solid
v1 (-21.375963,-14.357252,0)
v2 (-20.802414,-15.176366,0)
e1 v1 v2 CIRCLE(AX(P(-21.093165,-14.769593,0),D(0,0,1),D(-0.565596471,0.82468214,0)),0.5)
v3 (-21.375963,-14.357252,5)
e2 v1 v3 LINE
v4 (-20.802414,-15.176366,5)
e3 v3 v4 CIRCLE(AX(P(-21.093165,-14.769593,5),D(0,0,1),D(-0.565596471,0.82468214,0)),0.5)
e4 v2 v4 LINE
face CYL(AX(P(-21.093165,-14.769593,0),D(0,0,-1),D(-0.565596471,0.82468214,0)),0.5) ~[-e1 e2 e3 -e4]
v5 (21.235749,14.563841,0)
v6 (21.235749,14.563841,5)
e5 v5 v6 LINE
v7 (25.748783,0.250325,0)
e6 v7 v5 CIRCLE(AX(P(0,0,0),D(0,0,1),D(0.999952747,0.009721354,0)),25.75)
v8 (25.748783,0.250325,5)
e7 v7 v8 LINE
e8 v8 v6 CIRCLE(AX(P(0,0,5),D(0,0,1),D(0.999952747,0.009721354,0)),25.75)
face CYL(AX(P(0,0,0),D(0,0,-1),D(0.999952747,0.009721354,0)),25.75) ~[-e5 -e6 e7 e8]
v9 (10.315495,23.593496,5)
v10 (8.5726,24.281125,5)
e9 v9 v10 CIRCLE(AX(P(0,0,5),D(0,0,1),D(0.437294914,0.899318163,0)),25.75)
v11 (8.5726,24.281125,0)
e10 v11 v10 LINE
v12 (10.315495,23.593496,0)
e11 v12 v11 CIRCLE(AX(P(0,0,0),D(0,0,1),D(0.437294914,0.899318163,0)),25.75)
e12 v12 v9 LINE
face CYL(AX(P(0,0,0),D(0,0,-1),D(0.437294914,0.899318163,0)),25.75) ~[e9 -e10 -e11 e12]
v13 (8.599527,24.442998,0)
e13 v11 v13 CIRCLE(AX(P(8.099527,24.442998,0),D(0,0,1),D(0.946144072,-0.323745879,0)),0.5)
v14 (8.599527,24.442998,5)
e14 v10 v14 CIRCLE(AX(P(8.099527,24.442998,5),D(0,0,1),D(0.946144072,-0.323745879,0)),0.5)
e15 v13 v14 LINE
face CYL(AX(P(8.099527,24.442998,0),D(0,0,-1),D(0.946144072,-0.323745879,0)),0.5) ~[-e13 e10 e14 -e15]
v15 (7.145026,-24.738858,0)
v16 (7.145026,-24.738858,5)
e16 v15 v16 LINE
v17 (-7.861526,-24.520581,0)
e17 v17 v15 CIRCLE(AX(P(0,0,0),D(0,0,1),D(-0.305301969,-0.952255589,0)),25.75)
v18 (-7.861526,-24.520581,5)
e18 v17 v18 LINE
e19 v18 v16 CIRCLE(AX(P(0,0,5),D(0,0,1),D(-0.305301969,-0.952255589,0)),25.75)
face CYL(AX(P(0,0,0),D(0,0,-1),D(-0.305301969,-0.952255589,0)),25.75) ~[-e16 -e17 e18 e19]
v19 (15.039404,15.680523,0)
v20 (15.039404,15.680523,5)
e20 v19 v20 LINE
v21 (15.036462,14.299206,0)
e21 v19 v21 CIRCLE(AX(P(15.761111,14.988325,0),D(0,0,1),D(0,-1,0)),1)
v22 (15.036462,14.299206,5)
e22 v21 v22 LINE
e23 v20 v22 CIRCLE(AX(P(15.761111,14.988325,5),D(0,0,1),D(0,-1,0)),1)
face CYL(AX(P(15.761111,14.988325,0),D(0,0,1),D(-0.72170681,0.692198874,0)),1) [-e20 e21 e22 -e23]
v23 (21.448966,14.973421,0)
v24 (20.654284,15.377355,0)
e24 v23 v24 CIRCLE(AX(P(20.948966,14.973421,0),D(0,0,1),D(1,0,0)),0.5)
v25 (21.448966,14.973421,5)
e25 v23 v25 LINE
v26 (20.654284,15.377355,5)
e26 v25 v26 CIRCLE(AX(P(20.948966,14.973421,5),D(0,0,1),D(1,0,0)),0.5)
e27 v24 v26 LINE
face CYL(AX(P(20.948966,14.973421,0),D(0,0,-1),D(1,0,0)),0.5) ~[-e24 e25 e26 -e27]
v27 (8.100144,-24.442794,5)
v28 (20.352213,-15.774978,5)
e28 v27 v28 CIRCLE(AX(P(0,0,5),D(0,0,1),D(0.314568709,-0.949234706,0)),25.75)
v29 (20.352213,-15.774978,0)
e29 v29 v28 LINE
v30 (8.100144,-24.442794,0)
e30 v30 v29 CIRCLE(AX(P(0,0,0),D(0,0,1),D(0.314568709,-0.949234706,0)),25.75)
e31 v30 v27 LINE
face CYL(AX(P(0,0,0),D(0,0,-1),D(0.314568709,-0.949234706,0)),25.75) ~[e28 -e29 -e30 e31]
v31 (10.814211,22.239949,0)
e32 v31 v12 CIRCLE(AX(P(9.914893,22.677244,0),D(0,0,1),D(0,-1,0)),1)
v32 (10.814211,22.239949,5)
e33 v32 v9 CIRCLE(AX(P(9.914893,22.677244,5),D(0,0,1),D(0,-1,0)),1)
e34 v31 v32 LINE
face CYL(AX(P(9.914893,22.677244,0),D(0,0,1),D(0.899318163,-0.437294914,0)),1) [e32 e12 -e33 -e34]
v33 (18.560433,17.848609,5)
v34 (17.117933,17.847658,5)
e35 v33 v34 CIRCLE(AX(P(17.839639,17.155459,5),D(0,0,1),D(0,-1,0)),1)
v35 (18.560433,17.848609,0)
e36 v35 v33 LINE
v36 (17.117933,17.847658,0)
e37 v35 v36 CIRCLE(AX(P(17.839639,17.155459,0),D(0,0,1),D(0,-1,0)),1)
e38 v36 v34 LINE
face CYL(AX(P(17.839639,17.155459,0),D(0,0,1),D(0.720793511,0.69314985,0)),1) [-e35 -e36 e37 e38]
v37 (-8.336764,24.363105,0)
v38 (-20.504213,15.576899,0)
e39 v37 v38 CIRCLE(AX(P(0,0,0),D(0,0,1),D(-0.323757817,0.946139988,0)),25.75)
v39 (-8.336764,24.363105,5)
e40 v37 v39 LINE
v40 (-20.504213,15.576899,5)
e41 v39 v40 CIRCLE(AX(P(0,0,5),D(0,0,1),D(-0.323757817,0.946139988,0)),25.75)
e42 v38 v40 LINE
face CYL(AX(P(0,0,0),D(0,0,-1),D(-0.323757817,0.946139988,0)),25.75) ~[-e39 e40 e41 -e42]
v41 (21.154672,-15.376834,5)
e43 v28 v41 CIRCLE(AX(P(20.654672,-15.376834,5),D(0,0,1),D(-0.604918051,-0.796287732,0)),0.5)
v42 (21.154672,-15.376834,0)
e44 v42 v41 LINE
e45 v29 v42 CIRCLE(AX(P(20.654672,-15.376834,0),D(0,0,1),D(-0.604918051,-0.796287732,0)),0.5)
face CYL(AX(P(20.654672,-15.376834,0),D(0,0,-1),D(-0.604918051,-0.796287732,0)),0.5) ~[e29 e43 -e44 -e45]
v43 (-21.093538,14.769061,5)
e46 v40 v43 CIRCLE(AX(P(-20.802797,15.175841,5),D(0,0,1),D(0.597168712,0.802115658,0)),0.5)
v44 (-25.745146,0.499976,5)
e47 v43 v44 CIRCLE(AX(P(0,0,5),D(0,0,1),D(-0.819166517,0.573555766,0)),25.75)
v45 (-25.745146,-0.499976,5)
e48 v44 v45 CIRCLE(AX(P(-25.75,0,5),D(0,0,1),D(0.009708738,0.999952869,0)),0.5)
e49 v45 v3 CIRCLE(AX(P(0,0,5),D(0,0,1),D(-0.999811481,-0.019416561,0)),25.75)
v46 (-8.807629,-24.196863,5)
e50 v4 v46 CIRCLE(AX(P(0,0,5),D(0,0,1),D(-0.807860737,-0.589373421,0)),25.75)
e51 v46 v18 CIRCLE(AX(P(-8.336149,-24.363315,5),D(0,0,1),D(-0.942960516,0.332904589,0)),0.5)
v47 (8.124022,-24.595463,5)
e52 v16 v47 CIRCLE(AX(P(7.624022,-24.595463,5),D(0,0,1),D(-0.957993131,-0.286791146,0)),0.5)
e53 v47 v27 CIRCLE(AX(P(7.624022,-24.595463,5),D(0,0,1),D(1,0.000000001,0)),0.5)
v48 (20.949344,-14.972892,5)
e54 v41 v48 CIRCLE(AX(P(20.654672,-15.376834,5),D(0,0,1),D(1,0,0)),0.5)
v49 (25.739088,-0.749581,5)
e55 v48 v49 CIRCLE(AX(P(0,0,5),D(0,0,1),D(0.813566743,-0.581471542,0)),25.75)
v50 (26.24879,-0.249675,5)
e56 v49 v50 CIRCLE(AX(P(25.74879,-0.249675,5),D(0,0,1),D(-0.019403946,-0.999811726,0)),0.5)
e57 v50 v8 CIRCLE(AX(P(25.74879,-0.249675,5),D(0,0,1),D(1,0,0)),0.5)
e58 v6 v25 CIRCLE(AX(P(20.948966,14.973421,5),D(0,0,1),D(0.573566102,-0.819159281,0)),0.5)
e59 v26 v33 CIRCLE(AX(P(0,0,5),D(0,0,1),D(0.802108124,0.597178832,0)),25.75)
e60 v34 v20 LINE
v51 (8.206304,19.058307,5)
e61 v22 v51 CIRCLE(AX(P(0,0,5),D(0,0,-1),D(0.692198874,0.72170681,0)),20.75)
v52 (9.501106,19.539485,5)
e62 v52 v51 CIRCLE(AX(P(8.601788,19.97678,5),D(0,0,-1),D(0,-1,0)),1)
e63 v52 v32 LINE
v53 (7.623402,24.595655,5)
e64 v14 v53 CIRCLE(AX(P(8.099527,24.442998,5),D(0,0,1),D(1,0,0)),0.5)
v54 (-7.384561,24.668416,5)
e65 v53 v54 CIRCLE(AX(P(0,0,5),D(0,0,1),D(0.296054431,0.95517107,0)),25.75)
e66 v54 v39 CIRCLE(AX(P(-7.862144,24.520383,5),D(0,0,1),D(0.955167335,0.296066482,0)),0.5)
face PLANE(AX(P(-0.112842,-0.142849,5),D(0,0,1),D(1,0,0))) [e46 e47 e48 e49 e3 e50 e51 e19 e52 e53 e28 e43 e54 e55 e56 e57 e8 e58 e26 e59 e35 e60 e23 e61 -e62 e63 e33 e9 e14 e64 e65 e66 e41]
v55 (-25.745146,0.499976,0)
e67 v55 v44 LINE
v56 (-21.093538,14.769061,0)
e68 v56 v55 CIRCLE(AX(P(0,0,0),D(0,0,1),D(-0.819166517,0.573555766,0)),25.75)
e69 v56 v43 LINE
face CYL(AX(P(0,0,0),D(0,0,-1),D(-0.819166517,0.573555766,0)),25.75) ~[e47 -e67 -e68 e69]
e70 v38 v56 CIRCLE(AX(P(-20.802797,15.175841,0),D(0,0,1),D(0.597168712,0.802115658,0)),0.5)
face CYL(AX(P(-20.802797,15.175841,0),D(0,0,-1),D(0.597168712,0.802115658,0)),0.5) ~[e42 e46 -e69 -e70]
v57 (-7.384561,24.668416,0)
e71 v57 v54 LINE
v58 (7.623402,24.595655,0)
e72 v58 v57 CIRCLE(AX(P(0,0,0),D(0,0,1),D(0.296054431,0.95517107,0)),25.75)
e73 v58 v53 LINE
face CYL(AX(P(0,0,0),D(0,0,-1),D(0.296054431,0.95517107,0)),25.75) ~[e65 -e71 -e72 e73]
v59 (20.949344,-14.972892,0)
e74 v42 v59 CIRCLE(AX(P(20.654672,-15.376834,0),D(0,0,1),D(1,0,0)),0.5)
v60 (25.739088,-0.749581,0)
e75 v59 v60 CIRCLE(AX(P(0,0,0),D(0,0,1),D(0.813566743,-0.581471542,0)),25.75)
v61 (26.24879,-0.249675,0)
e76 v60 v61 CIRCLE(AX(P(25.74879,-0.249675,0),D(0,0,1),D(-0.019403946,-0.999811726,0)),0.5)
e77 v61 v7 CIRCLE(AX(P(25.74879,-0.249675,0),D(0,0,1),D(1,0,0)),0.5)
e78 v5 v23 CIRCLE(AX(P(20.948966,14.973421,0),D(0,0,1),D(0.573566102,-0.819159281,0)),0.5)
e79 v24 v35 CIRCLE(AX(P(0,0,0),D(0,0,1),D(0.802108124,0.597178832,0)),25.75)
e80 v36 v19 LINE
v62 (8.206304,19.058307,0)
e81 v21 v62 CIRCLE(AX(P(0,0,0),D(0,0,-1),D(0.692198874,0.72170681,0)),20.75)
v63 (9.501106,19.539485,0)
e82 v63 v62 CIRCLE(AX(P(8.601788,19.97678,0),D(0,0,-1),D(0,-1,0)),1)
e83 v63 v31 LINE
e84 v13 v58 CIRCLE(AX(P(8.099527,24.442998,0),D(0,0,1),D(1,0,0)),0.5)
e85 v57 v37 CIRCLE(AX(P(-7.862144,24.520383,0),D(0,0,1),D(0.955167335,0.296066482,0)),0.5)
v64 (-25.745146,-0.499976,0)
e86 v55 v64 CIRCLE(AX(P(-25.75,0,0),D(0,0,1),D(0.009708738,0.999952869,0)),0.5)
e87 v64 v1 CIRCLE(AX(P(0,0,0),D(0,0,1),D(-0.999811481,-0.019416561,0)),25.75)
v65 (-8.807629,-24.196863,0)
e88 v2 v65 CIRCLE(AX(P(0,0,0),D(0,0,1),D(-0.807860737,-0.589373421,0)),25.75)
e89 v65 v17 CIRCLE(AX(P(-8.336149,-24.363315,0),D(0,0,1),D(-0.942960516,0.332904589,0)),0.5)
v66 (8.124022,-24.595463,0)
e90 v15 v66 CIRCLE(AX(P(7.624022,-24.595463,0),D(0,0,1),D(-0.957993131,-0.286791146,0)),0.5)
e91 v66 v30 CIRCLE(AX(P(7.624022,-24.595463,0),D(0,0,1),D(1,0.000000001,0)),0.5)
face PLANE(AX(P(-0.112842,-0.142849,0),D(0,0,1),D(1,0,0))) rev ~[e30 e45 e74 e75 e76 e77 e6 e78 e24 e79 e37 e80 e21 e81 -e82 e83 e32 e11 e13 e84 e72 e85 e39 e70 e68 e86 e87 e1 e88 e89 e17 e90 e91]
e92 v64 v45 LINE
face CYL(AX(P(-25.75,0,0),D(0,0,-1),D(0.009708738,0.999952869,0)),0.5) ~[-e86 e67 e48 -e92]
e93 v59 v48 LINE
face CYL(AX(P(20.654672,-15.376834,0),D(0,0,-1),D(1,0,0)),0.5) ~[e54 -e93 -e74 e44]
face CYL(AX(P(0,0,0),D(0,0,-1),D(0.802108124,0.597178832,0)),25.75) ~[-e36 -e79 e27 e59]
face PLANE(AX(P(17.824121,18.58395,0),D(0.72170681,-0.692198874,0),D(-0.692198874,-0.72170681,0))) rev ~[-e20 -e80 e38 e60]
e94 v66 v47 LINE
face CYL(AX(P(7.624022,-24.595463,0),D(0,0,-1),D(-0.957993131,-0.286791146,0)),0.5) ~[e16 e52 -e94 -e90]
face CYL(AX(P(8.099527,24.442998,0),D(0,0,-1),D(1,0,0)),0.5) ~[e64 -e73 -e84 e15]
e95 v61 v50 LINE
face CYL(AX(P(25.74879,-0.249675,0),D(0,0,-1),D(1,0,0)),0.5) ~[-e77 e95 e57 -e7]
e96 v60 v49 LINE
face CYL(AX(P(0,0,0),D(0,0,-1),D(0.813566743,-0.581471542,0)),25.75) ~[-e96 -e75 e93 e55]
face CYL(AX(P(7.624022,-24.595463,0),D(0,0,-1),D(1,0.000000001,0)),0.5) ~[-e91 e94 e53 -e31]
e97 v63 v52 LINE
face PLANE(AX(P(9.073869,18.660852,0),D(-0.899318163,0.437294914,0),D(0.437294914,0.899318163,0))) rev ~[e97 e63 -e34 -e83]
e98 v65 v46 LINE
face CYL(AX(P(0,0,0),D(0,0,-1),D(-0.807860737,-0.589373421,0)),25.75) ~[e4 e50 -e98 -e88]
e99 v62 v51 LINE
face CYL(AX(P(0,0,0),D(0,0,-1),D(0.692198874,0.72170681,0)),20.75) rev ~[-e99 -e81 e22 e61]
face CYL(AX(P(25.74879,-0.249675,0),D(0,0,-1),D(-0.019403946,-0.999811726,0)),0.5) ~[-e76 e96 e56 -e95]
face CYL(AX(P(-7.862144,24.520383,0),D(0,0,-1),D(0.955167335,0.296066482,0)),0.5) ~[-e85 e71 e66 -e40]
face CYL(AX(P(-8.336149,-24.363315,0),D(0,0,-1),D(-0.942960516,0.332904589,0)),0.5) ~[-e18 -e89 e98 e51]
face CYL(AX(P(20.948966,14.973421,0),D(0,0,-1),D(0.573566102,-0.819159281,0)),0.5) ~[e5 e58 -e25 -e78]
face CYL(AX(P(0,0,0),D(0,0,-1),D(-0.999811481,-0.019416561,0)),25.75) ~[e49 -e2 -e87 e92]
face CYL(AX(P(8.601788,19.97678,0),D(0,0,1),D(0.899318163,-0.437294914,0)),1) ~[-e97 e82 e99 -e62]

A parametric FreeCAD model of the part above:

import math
import FreeCAD as App
import Part
import Sketcher
from FreeCAD import Vector
Q = App.Units.Quantity


def edges_at(feature, points):
    """Names of the edges that pass closest to the given points."""
    edges = feature.Shape.Edges
    near = lambda p: min(range(len(edges)), key=lambda i: edges[i].distToShape(Part.Vertex(*p))[0])
    return sorted({f"Edge{near(p) + 1}" for p in points})

doc = App.newDocument("Part")
body = doc.addObject("PartDesign::Body", "Body")

# Sketch on XY plane
sketch1 = body.newObject("Sketcher::SketchObject", "Sketch")
sketch1.AttachmentSupport = (doc.getObject("XY_Plane"), [""])
sketch1.MapMode = "FlatFace"
sketch1.addGeometry(Part.LineSegment(Vector(9.07, 18.66, 0), Vector(11.26, 23.16, 0)), False)
sketch1.addGeometry(Part.ArcOfCircle(Part.Circle(Vector(0, 0, 0), Vector(0, 0, 1), 25.75), math.radians(64.07), math.radians(70.55)), False)
sketch1.addGeometry(Part.ArcOfCircle(Part.Circle(Vector(8.1, 24.44, 0), Vector(0, 0, 1), 0.5), math.radians(-18.89), math.radians(0)), False)
sketch1.addGeometry(Part.ArcOfCircle(Part.Circle(Vector(8.1, 24.44, 0), Vector(0, 0, 1), 0.5), math.radians(0), math.radians(162)), False)
sketch1.addGeometry(Part.ArcOfCircle(Part.Circle(Vector(0, 0, 0), Vector(0, 0, 1), 25.75), math.radians(73), math.radians(107)), False)
sketch1.addGeometry(Part.ArcOfCircle(Part.Circle(Vector(-7.86, 24.52, 0), Vector(0, 0, 1), 0.5), math.radians(17), math.radians(198)), False)
sketch1.addGeometry(Part.ArcOfCircle(Part.Circle(Vector(0, 0, 0), Vector(0, 0, 1), 25.75), math.radians(109), math.radians(143)), False)
sketch1.addGeometry(Part.ArcOfCircle(Part.Circle(Vector(-20.8, 15.18, 0), Vector(0, 0, 1), 0.5), math.radians(53), math.radians(234)), False)
sketch1.addGeometry(Part.ArcOfCircle(Part.Circle(Vector(0, 0, 0), Vector(0, 0, 1), 25.75), math.radians(145), math.radians(179)), False)
sketch1.addGeometry(Part.ArcOfCircle(Part.Circle(Vector(-25.75, 0, 0), Vector(0, 0, 1), 0.5), math.radians(89), math.radians(271)), False)
sketch1.addGeometry(Part.ArcOfCircle(Part.Circle(Vector(0, 0, 0), Vector(0, 0, 1), 25.75), math.radians(-179), math.radians(-146)), False)
sketch1.addGeometry(Part.ArcOfCircle(Part.Circle(Vector(-21.09, -14.77, 0), Vector(0, 0, 1), 0.5), math.radians(124), math.radians(306)), False)
sketch1.addGeometry(Part.ArcOfCircle(Part.Circle(Vector(0, 0, 0), Vector(0, 0, 1), 25.75), math.radians(-144), math.radians(-110)), False)
sketch1.addGeometry(Part.ArcOfCircle(Part.Circle(Vector(-8.34, -24.36, 0), Vector(0, 0, 1), 0.5), math.radians(161), math.radians(342)), False)
sketch1.addGeometry(Part.ArcOfCircle(Part.Circle(Vector(0, 0, 0), Vector(0, 0, 1), 25.75), math.radians(-108), math.radians(-74)), False)
sketch1.addGeometry(Part.ArcOfCircle(Part.Circle(Vector(7.62, -24.6, 0), Vector(0, 0, 1), 0.5), math.radians(-163), math.radians(0)), False)
sketch1.addGeometry(Part.ArcOfCircle(Part.Circle(Vector(7.62, -24.6, 0), Vector(0, 0, 1), 0.5), math.radians(0), math.radians(17.78)), False)
sketch1.addGeometry(Part.ArcOfCircle(Part.Circle(Vector(0, 0, 0), Vector(0, 0, 1), 25.75), math.radians(-72), math.radians(-38)), False)
sketch1.addGeometry(Part.ArcOfCircle(Part.Circle(Vector(20.65, -15.38, 0), Vector(0, 0, 1), 0.5), math.radians(-127), math.radians(0)), False)
sketch1.addGeometry(Part.ArcOfCircle(Part.Circle(Vector(20.65, -15.38, 0), Vector(0, 0, 1), 0.5), math.radians(0), math.radians(54)), False)
sketch1.addGeometry(Part.ArcOfCircle(Part.Circle(Vector(0, 0, 0), Vector(0, 0, 1), 25.75), math.radians(-36), math.radians(-2)), False)
sketch1.addGeometry(Part.ArcOfCircle(Part.Circle(Vector(25.75, -0.25, 0), Vector(0, 0, 1), 0.5), math.radians(-91), math.radians(0)), False)
sketch1.addGeometry(Part.ArcOfCircle(Part.Circle(Vector(25.75, -0.25, 0), Vector(0, 0, 1), 0.5), math.radians(0), math.radians(90)), False)
sketch1.addGeometry(Part.ArcOfCircle(Part.Circle(Vector(0, 0, 0), Vector(0, 0, 1), 25.75), math.radians(1), math.radians(34)), False)
sketch1.addGeometry(Part.ArcOfCircle(Part.Circle(Vector(20.95, 14.97, 0), Vector(0, 0, 1), 0.5), math.radians(-55), math.radians(0)), False)
sketch1.addGeometry(Part.ArcOfCircle(Part.Circle(Vector(20.95, 14.97, 0), Vector(0, 0, 1), 0.5), math.radians(0), math.radians(126)), False)
sketch1.addGeometry(Part.ArcOfCircle(Part.Circle(Vector(0, 0, 0), Vector(0, 0, 1), 25.75), math.radians(36.67), math.radians(46.2)), False)
sketch1.addGeometry(Part.LineSegment(Vector(17.82, 18.58, 0), Vector(14.36, 14.98, 0)), False)
sketch1.addGeometry(Part.ArcOfCircle(Part.Circle(Vector(0, 0, 0), Vector(0, 0, 1), 20.75), math.radians(64), math.radians(406)), False)
sketch1.addConstraint(Sketcher.Constraint("Coincident", 0, 2, 1, 1))
sketch1.addConstraint(Sketcher.Constraint("Coincident", 1, 2, 2, 1))
sketch1.addConstraint(Sketcher.Constraint("Tangent", 2, 2, 3, 1))
sketch1.addConstraint(Sketcher.Constraint("Coincident", 3, 2, 4, 1))
sketch1.addConstraint(Sketcher.Constraint("Coincident", 4, 2, 5, 1))
sketch1.addConstraint(Sketcher.Constraint("Coincident", 5, 2, 6, 1))
sketch1.addConstraint(Sketcher.Constraint("Coincident", 6, 2, 7, 1))
sketch1.addConstraint(Sketcher.Constraint("Coincident", 7, 2, 8, 1))
sketch1.addConstraint(Sketcher.Constraint("Coincident", 8, 2, 9, 1))
sketch1.addConstraint(Sketcher.Constraint("Coincident", 9, 2, 10, 1))
sketch1.addConstraint(Sketcher.Constraint("Coincident", 10, 2, 11, 1))
sketch1.addConstraint(Sketcher.Constraint("Coincident", 11, 2, 12, 1))
sketch1.addConstraint(Sketcher.Constraint("Coincident", 12, 2, 13, 1))
sketch1.addConstraint(Sketcher.Constraint("Coincident", 13, 2, 14, 1))
sketch1.addConstraint(Sketcher.Constraint("Coincident", 14, 2, 15, 1))
sketch1.addConstraint(Sketcher.Constraint("Tangent", 15, 2, 16, 1))
sketch1.addConstraint(Sketcher.Constraint("Coincident", 16, 2, 17, 1))
sketch1.addConstraint(Sketcher.Constraint("Coincident", 17, 2, 18, 1))
sketch1.addConstraint(Sketcher.Constraint("Tangent", 18, 2, 19, 1))
sketch1.addConstraint(Sketcher.Constraint("Coincident", 19, 2, 20, 1))
sketch1.addConstraint(Sketcher.Constraint("Coincident", 20, 2, 21, 1))
sketch1.addConstraint(Sketcher.Constraint("Tangent", 21, 2, 22, 1))
sketch1.addConstraint(Sketcher.Constraint("Coincident", 22, 2, 23, 1))
sketch1.addConstraint(Sketcher.Constraint("Coincident", 23, 2, 24, 1))
sketch1.addConstraint(Sketcher.Constraint("Tangent", 24, 2, 25, 1))
sketch1.addConstraint(Sketcher.Constraint("Coincident", 25, 2, 26, 1))
sketch1.addConstraint(Sketcher.Constraint("Coincident", 26, 2, 27, 1))
sketch1.addConstraint(Sketcher.Constraint("Coincident", 27, 2, 28, 2))
sketch1.addConstraint(Sketcher.Constraint("Coincident", 28, 1, 0, 1))
sketch1.addConstraint(Sketcher.Constraint("Coincident", 1, 3, -1, 1))
sketch1.addConstraint(Sketcher.Constraint("Coincident", 4, 3, -1, 1))
sketch1.addConstraint(Sketcher.Constraint("Coincident", 6, 3, -1, 1))
sketch1.addConstraint(Sketcher.Constraint("Coincident", 8, 3, -1, 1))
sketch1.addConstraint(Sketcher.Constraint("Coincident", 10, 3, -1, 1))
sketch1.addConstraint(Sketcher.Constraint("Coincident", 12, 3, -1, 1))
sketch1.addConstraint(Sketcher.Constraint("Coincident", 14, 3, -1, 1))
sketch1.addConstraint(Sketcher.Constraint("Coincident", 17, 3, -1, 1))
sketch1.addConstraint(Sketcher.Constraint("Coincident", 20, 3, -1, 1))
sketch1.addConstraint(Sketcher.Constraint("Coincident", 23, 3, -1, 1))
sketch1.addConstraint(Sketcher.Constraint("Coincident", 26, 3, -1, 1))
sketch1.addConstraint(Sketcher.Constraint("Coincident", 28, 3, -1, 1))
sketch1.addConstraint(Sketcher.Constraint("Equal", 2, 3))
sketch1.addConstraint(Sketcher.Constraint("Equal", 1, 4))
sketch1.addConstraint(Sketcher.Constraint("Equal", 3, 5))
sketch1.addConstraint(Sketcher.Constraint("Equal", 4, 6))
sketch1.addConstraint(Sketcher.Constraint("Equal", 5, 7))
sketch1.addConstraint(Sketcher.Constraint("Equal", 6, 8))
sketch1.addConstraint(Sketcher.Constraint("Equal", 7, 9))
sketch1.addConstraint(Sketcher.Constraint("Equal", 8, 10))
sketch1.addConstraint(Sketcher.Constraint("Equal", 9, 11))
sketch1.addConstraint(Sketcher.Constraint("Equal", 10, 12))
sketch1.addConstraint(Sketcher.Constraint("Equal", 11, 13))
sketch1.addConstraint(Sketcher.Constraint("Equal", 12, 14))
sketch1.addConstraint(Sketcher.Constraint("Equal", 13, 15))
sketch1.addConstraint(Sketcher.Constraint("Equal", 15, 16))
sketch1.addConstraint(Sketcher.Constraint("Equal", 14, 17))
sketch1.addConstraint(Sketcher.Constraint("Equal", 16, 18))
sketch1.addConstraint(Sketcher.Constraint("Equal", 18, 19))
sketch1.addConstraint(Sketcher.Constraint("Equal", 17, 20))
sketch1.addConstraint(Sketcher.Constraint("Equal", 19, 21))
sketch1.addConstraint(Sketcher.Constraint("Equal", 21, 22))
sketch1.addConstraint(Sketcher.Constraint("Equal", 20, 23))
sketch1.addConstraint(Sketcher.Constraint("Equal", 22, 24))
sketch1.addConstraint(Sketcher.Constraint("Equal", 24, 25))
sketch1.addConstraint(Sketcher.Constraint("Equal", 23, 26))
sketch1.addConstraint(Sketcher.Constraint("PointOnObject", 9, 3, -1))
sketch1.addConstraint(Sketcher.Constraint("Horizontal", 3, 3, 2, 2))
sketch1.addConstraint(Sketcher.Constraint("Horizontal", 16, 3, 15, 2))
sketch1.addConstraint(Sketcher.Constraint("Horizontal", 19, 3, 18, 2))
sketch1.addConstraint(Sketcher.Constraint("Horizontal", 22, 3, 21, 2))
sketch1.addConstraint(Sketcher.Constraint("Horizontal", 25, 3, 24, 2))
sketch1.addConstraint(Sketcher.Constraint("Radius", 2, Q("0.5 mm")))
sketch1.addConstraint(Sketcher.Constraint("Radius", 1, Q("25.75 mm")))
sketch1.addConstraint(Sketcher.Constraint("Radius", 28, Q("20.75 mm")))
sketch1.addConstraint(Sketcher.Constraint("DistanceX", 9, 3, -1, 1, Q("25.75 mm")))
sketch1.addConstraint(Sketcher.Constraint("DistanceY", -1, 1, 2, 3, Q("24.442998 mm")))
sketch1.addConstraint(Sketcher.Constraint("DistanceX", -1, 1, 1, 2, Q("8.5726 mm")))
sketch1.addConstraint(Sketcher.Constraint("DistanceY", -1, 1, 6, 2, Q("15.576899 mm")))
sketch1.addConstraint(Sketcher.Constraint("DistanceX", 10, 2, 11, 3, Q("0.282798 mm")))
sketch1.addConstraint(Sketcher.Constraint("DistanceY", 16, 3, 12, 2, Q("0.3986 mm")))
sketch1.addConstraint(Sketcher.Constraint("DistanceX", 20, 2, 21, 3, Q("0.009702 mm")))
sketch1.addConstraint(Sketcher.Constraint("DistanceY", 23, 2, 0, 2, Q("8.593601 mm")))
sketch1.addConstraint(Sketcher.Constraint("DistanceY", -1, 1, 7, 3, Q("15.175841 mm")))
sketch1.addConstraint(Sketcher.Constraint("DistanceX", 13, 3, -1, 1, Q("8.336149 mm")))
sketch1.addConstraint(Sketcher.Constraint("DistanceX", -1, 1, 21, 3, Q("25.74879 mm")))
sketch1.addConstraint(Sketcher.Constraint("DistanceY", -1, 1, 24, 3, Q("14.973421 mm")))
sketch1.addConstraint(Sketcher.Constraint("DistanceX", 4, 2, -1, 1, Q("7.384561 mm")))
sketch1.addConstraint(Sketcher.Constraint("DistanceX", 12, 2, -1, 1, Q("8.807629 mm")))
sketch1.addConstraint(Sketcher.Constraint("DistanceY", 14, 2, -1, 1, Q("24.738858 mm")))
sketch1.addConstraint(Sketcher.Constraint("DistanceX", -1, 1, 23, 2, Q("21.235749 mm")))
sketch1.addConstraint(Sketcher.Constraint("DistanceX", -1, 1, 26, 2, Q("17.824121 mm")))
sketch1.addConstraint(Sketcher.Constraint("DistanceX", -1, 1, 28, 1, Q("9.073869 mm")))
sketch1.addConstraint(Sketcher.Constraint("DistanceX", 5, 3, 2, 3, Q("15.961672 mm")))
sketch1.addConstraint(Sketcher.Constraint("DistanceY", 13, 3, 11, 3, Q("9.593722 mm")))
sketch1.addConstraint(Sketcher.Constraint("DistanceX", 15, 3, 18, 3, Q("13.03065 mm")))
sketch1.addConstraint(Sketcher.Constraint("DistanceY", 15, 3, 18, 3, Q("9.218629 mm")))
sketch1.addConstraint(Sketcher.Constraint("DistanceY", 27, 2, 25, 2, Q("0.401939 mm")))
pad1 = body.newObject("PartDesign::Pad", "Pad")
pad1.Profile = sketch1
pad1.Length = 5
doc.recompute()

fillet = body.newObject("PartDesign::Fillet", "Fillet")
fillet.Base = (pad1, edges_at(pad1, [
    (9.074, 18.661, 2.5),
    (11.26, 23.157, 2.5),
    (17.824, 18.584, 2.5),
    (14.363, 14.975, 2.5),
]))
fillet.Radius = 1

doc.recompute()
